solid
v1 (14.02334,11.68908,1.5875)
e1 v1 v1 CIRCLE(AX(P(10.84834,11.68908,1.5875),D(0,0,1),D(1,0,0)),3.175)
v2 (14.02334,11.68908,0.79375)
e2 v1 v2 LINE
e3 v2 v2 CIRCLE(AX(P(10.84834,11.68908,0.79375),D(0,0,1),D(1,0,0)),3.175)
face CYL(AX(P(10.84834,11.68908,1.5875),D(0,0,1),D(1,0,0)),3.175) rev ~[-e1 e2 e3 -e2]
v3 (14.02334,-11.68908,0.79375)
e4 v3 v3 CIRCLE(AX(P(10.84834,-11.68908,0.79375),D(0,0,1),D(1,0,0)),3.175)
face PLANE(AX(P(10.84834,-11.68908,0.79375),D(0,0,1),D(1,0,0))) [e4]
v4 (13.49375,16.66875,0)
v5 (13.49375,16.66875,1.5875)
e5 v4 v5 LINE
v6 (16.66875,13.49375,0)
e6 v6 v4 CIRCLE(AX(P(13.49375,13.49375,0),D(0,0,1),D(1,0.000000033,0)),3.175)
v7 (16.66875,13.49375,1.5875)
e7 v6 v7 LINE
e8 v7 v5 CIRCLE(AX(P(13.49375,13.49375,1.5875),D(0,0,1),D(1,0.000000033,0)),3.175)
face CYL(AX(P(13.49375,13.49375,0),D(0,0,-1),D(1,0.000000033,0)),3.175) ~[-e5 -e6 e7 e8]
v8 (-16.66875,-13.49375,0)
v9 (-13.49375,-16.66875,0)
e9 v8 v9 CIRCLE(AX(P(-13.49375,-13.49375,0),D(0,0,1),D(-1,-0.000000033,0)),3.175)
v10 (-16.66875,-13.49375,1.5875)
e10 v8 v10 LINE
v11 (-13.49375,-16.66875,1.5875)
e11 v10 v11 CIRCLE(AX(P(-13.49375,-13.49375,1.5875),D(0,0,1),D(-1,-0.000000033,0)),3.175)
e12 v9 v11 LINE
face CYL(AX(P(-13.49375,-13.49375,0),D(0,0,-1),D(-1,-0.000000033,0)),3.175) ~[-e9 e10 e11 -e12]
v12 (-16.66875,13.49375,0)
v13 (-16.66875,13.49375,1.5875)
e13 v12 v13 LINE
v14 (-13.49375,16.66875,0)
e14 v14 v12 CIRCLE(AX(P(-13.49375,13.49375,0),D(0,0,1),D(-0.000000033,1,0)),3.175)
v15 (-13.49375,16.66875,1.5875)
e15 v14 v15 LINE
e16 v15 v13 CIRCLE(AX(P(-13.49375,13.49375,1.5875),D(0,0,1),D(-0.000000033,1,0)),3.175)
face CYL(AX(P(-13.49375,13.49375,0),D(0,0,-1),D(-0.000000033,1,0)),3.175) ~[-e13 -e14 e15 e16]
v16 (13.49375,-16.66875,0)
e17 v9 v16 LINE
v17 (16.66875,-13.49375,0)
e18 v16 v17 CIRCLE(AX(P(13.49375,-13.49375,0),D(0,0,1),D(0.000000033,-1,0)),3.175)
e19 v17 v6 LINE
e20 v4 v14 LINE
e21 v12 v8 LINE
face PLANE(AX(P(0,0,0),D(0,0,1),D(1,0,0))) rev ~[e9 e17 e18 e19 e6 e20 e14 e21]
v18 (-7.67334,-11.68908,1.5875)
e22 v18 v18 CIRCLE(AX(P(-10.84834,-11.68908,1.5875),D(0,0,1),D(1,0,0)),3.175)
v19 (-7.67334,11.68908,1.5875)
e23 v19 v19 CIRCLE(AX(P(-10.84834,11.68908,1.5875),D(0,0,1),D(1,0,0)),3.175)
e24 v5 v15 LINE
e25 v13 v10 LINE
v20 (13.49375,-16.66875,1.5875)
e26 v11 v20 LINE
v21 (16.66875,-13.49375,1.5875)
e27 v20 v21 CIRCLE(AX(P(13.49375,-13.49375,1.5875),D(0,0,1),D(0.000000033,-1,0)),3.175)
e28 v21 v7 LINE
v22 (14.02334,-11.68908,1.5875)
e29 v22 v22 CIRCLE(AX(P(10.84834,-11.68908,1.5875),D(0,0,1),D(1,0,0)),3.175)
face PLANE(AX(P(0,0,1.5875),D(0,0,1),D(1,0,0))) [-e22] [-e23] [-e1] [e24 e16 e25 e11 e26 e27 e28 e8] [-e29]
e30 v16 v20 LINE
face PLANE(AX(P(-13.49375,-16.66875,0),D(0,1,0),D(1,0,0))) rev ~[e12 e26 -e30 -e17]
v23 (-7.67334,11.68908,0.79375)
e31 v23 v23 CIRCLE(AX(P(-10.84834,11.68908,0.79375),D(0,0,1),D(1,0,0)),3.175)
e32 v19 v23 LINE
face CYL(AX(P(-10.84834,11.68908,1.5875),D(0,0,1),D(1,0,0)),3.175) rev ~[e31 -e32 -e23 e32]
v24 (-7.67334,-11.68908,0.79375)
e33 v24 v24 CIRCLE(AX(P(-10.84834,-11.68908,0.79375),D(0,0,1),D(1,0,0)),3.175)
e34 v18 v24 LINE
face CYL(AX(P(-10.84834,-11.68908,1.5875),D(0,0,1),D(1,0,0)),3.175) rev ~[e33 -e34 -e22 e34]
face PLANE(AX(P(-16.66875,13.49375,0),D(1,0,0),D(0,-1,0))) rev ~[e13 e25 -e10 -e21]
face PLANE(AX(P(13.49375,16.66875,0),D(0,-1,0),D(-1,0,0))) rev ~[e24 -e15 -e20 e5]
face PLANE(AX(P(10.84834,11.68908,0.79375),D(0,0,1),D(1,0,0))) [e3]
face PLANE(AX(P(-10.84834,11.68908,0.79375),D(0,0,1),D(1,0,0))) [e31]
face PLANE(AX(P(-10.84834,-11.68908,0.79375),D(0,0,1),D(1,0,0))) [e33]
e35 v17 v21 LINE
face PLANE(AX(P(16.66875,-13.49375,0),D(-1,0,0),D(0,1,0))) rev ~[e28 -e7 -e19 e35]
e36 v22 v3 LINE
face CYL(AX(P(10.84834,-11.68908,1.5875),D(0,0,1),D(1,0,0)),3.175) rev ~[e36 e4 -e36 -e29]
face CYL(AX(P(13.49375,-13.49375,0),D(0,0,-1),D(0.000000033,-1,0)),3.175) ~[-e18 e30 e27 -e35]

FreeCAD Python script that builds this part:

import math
import FreeCAD as App
import Part
import Sketcher
Q = App.Units.Quantity

doc = App.newDocument("Part")
body = doc.addObject("PartDesign::Body", "Body")

sketch1 = body.newObject("Sketcher::SketchObject", "Sketch")
sketch1.AttachmentSupport = (doc.getObject("XY_Plane"), [""])
sketch1.MapMode = "FlatFace"
sketch1.addGeometry(Part.LineSegment(App.Vector(-13.5, -16.7, 0), App.Vector(13.5, -16.7, 0)), False)
sketch1.addGeometry(Part.ArcOfCircle(Part.Circle(App.Vector(13.5, -13.5, 0), App.Vector(0, 0, 1), 3.2), math.radians(-90), math.radians(0)), False)
sketch1.addGeometry(Part.LineSegment(App.Vector(16.7, -13.5, 0), App.Vector(16.7, 13.5, 0)), False)
sketch1.addGeometry(Part.ArcOfCircle(Part.Circle(App.Vector(13.5, 13.5, 0), App.Vector(0, 0, 1), 3.2), math.radians(0), math.radians(90)), False)
sketch1.addGeometry(Part.LineSegment(App.Vector(13.5, 16.7, 0), App.Vector(-13.5, 16.7, 0)), False)
sketch1.addGeometry(Part.ArcOfCircle(Part.Circle(App.Vector(-13.5, 13.5, 0), App.Vector(0, 0, 1), 3.2), math.radians(90), math.radians(180)), False)
sketch1.addGeometry(Part.LineSegment(App.Vector(-16.7, 13.5, 0), App.Vector(-16.7, -13.5, 0)), False)
sketch1.addGeometry(Part.ArcOfCircle(Part.Circle(App.Vector(-13.5, -13.5, 0), App.Vector(0, 0, 1), 3.2), math.radians(-180), math.radians(-90)), False)
sketch1.addConstraint(Sketcher.Constraint("Tangent", 0, 2, 1, 1))
sketch1.addConstraint(Sketcher.Constraint("Tangent", 1, 2, 2, 1))
sketch1.addConstraint(Sketcher.Constraint("Tangent", 2, 2, 3, 1))
sketch1.addConstraint(Sketcher.Constraint("Tangent", 3, 2, 4, 1))
sketch1.addConstraint(Sketcher.Constraint("Tangent", 4, 2, 5, 1))
sketch1.addConstraint(Sketcher.Constraint("Tangent", 5, 2, 6, 1))
sketch1.addConstraint(Sketcher.Constraint("Tangent", 6, 2, 7, 1))
sketch1.addConstraint(Sketcher.Constraint("Tangent", 7, 2, 0, 1))
sketch1.addConstraint(Sketcher.Constraint("Horizontal", 0))
sketch1.addConstraint(Sketcher.Constraint("Vertical", 2))
sketch1.addConstraint(Sketcher.Constraint("Horizontal", 4))
sketch1.addConstraint(Sketcher.Constraint("Vertical", 6))
sketch1.addConstraint(Sketcher.Constraint("Equal", 1, 3))
sketch1.addConstraint(Sketcher.Constraint("Equal", 3, 5))
sketch1.addConstraint(Sketcher.Constraint("Equal", 5, 7))
sketch1.addConstraint(Sketcher.Constraint("Symmetric", 1, 3, 5, 3, -1, 1))
sketch1.addConstraint(Sketcher.Constraint("Equal", 4, 2))
sketch1.addConstraint(Sketcher.Constraint("Radius", 1, Q("0.125 in")))
sketch1.addConstraint(Sketcher.Constraint("DistanceX", 0, 1, 0, 2, Q("1.0625 in")))
pad1 = body.newObject("PartDesign::Pad", "Pad")
pad1.Profile = sketch1
pad1.Length = Q("0.0625 in")

sketch2 = body.newObject("Sketcher::SketchObject", "Sketch001")
sketch2.AttachmentSupport = (doc.getObject("XY_Plane"), [""])
sketch2.MapMode = "FlatFace"
sketch2.AttachmentOffset = App.Placement(App.Vector(0, 0, 0.0625 * 25.4), App.Rotation())
sketch2.addGeometry(Part.Circle(App.Vector(-10.8, 11.7, 0), App.Vector(0, 0, 1), 3.2), False)
sketch2.addGeometry(Part.Circle(App.Vector(10.8, 11.7, 0), App.Vector(0, 0, 1), 3.2), False)
sketch2.addGeometry(Part.Circle(App.Vector(10.8, -11.7, 0), App.Vector(0, 0, 1), 3.2), False)
sketch2.addGeometry(Part.Circle(App.Vector(-10.8, -11.7, 0), App.Vector(0, 0, 1), 3.2), False)
sketch2.addConstraint(Sketcher.Constraint("Equal", 0, 1))
sketch2.addConstraint(Sketcher.Constraint("Equal", 1, 2))
sketch2.addConstraint(Sketcher.Constraint("Equal", 2, 3))
sketch2.addConstraint(Sketcher.Constraint("Symmetric", 0, 3, 2, 3, -1, 1))
sketch2.addConstraint(Sketcher.Constraint("Symmetric", 1, 3, 3, 3, -1, 1))
sketch2.addConstraint(Sketcher.Constraint("Symmetric", 0, 3, 1, 3, -2))
sketch2.addConstraint(Sketcher.Constraint("Diameter", 0, Q("0.25 in")))
sketch2.addConstraint(Sketcher.Constraint("DistanceX", 0, 3, -1, 1, Q("0.4271 in")))
sketch2.addConstraint(Sketcher.Constraint("DistanceY", -1, 1, 0, 3, Q("0.4602 in")))
pocket1 = body.newObject("PartDesign::Pocket", "Pocket")
pocket1.Profile = sketch2
pocket1.Length = Q("0.03125 in")

doc.recompute()
